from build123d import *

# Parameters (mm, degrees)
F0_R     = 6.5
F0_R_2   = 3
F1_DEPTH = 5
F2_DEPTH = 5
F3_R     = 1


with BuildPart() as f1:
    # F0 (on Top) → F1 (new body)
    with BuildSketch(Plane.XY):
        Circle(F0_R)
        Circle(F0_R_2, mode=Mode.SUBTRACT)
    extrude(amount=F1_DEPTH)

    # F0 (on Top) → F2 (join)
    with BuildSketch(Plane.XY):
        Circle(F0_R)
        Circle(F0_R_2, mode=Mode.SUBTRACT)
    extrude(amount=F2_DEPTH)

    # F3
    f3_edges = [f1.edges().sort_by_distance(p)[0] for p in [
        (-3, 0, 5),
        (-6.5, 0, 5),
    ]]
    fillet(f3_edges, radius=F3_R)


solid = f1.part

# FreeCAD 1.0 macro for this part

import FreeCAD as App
import Part
import Sketcher
from FreeCAD import Vector


def edges_at(feature, points):
    """Names of the edges that pass closest to the given points."""
    edges = feature.Shape.Edges
    near = lambda p: min(range(len(edges)), key=lambda i: edges[i].distToShape(Part.Vertex(*p))[0])
    return sorted({f"Edge{near(p) + 1}" for p in points})

doc = App.newDocument("Part")
params = doc.addObject("Spreadsheet::Sheet", "Params")
for row, (alias, value) in enumerate([
    ("sketch1_diameter", "13 mm"),
    ("sketch1_diameter2", "6 mm"),
    ("pad1_length", "5 mm"),
    ("sketch2_diameter", "13 mm"),
    ("sketch2_diameter2", "6 mm"),
    ("pad2_length", "5 mm"),
    ("fillet_radius", "1 mm"),
], start=1):
    params.set(f"A{row}", alias)
    params.set(f"B{row}", "=" + value)
    params.setAlias(f"B{row}", alias)

body = doc.addObject("PartDesign::Body", "Body")

sketch1 = body.newObject("Sketcher::SketchObject", "Sketch")
sketch1.AttachmentSupport = (doc.getObject("XY_Plane"), [""])
sketch1.MapMode = "FlatFace"
sketch1.addGeometry([
    Part.Circle(Vector(0, 0, 0), Vector(0, 0, 1), 6.5),
    Part.Circle(Vector(0, 0, 0), Vector(0, 0, 1), 3),
], False)
sketch1.addConstraint([
    Sketcher.Constraint("Coincident", 0, 3, -1, 1),
    Sketcher.Constraint("Coincident", 1, 3, -1, 1),
    Sketcher.Constraint("Diameter", 0, 13.0),
    Sketcher.Constraint("Diameter", 1, 6.0),
])
sketch1.setExpression("Constraints[2]", "Params.sketch1_diameter")
sketch1.setExpression("Constraints[3]", "Params.sketch1_diameter2")
pad1 = body.newObject("PartDesign::Pad", "Pad")
pad1.Profile = sketch1
pad1.setExpression("Length", "Params.pad1_length")

sketch2 = body.newObject("Sketcher::SketchObject", "Sketch001")
sketch2.AttachmentSupport = (doc.getObject("XY_Plane"), [""])
sketch2.MapMode = "FlatFace"
sketch2.addGeometry([
    Part.Circle(Vector(0, 0, 0), Vector(0, 0, 1), 6.5),
    Part.Circle(Vector(0, 0, 0), Vector(0, 0, 1), 3),
], False)
sketch2.addConstraint([
    Sketcher.Constraint("Coincident", 0, 3, -1, 1),
    Sketcher.Constraint("Coincident", 1, 3, -1, 1),
    Sketcher.Constraint("Diameter", 0, 13.0),
    Sketcher.Constraint("Diameter", 1, 6.0),
])
sketch2.setExpression("Constraints[2]", "Params.sketch2_diameter")
sketch2.setExpression("Constraints[3]", "Params.sketch2_diameter2")
pad2 = body.newObject("PartDesign::Pad", "Pad001")
pad2.Profile = sketch2
pad2.setExpression("Length", "Params.pad2_length")
doc.recompute()

fillet = body.newObject("PartDesign::Fillet", "Fillet")
fillet.Base = (pad2, edges_at(pad2, [(-3, 0, 5), (-6.5, 0, 5)]))
fillet.setExpression("Radius", "Params.fillet_radius")

doc.recompute()
